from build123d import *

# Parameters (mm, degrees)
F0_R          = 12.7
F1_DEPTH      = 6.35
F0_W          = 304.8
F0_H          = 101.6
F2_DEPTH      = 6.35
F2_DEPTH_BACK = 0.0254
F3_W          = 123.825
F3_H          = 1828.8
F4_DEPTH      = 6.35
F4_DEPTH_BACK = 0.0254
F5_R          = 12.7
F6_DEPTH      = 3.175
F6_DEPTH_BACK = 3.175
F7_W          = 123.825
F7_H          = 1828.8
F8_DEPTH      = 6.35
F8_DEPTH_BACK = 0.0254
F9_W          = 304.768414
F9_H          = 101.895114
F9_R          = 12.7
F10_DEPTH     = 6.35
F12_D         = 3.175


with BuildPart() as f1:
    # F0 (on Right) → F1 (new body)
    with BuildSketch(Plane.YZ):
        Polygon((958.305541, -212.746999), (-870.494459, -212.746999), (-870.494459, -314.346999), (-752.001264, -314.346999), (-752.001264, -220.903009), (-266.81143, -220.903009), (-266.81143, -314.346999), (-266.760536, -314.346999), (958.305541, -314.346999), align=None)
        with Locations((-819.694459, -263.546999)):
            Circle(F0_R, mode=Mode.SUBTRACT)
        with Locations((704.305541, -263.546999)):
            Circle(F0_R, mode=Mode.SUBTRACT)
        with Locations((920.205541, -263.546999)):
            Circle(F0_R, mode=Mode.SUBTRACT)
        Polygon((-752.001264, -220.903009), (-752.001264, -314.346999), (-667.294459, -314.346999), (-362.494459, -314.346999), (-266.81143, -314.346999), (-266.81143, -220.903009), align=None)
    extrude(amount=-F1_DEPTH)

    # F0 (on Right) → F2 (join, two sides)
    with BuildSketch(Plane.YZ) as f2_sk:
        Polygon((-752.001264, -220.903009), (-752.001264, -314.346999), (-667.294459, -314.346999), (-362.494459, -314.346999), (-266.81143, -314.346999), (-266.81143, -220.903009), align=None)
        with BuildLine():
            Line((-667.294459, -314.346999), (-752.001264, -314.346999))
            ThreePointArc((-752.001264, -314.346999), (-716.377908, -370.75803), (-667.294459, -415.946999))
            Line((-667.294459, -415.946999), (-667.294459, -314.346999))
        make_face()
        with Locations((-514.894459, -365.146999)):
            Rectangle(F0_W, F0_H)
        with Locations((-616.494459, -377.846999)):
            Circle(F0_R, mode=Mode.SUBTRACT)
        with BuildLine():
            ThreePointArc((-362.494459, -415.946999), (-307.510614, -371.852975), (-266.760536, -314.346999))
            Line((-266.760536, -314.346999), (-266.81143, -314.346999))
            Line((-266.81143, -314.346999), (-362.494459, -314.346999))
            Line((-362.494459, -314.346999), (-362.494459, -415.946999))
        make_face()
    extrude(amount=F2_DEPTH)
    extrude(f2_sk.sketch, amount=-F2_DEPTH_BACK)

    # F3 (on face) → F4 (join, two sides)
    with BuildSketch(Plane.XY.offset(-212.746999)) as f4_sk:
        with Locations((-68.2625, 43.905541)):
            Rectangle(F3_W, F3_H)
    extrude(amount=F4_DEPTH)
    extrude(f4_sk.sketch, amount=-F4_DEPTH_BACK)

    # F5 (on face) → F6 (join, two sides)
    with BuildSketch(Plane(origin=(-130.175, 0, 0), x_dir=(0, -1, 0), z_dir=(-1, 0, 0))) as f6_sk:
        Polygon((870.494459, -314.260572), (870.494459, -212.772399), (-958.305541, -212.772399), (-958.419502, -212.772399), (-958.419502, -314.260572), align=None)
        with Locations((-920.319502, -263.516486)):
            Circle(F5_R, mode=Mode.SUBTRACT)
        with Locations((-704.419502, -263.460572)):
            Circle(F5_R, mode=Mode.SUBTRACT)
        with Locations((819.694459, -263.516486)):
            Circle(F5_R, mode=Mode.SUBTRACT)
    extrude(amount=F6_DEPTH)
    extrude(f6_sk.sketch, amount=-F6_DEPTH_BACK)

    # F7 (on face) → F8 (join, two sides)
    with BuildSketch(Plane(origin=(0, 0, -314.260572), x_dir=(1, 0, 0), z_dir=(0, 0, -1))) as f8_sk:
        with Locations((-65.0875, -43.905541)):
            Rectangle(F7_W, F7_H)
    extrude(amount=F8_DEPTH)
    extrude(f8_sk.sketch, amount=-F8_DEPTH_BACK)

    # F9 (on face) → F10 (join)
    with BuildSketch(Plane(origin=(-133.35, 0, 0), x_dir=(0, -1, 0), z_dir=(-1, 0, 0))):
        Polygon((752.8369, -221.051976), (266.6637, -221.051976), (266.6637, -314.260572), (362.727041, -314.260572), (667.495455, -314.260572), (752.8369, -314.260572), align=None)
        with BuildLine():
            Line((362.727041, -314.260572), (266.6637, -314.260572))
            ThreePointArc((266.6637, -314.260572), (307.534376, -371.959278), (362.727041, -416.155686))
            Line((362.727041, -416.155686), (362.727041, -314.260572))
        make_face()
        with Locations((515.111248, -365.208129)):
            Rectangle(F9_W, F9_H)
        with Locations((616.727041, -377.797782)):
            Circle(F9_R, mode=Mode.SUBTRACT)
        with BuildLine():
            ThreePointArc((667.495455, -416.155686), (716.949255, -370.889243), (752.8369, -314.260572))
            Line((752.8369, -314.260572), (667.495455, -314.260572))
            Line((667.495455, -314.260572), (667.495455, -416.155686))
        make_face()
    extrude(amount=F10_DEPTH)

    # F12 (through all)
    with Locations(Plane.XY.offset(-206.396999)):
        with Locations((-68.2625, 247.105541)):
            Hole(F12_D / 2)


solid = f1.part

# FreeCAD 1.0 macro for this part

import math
import FreeCAD as App
import Part
import Sketcher
Q = App.Units.Quantity


def add_polygon(sketch, points):
    """Adds a closed chain of lines whose ends are joined by coincident constraints."""
    first, n = sketch.GeometryCount, len(points)
    for a, b in zip(points, points[1:] + points[:1]):
        sketch.addGeometry(Part.LineSegment(App.Vector(*a, 0), App.Vector(*b, 0)), False)
    for i in range(n):
        sketch.addConstraint(Sketcher.Constraint("Coincident", first + i, 2, first + (i + 1) % n, 1))

doc = App.newDocument("Part")
params = doc.addObject("Spreadsheet::Sheet", "Params")
for row, (alias, value) in enumerate([
    ("sketch1_diameter", "1 in"),
    ("sketch1_width", "72 in"),
    ("sketch1_height", "4 in"),
    ("pad1_length", "0.25 in"),
    ("sketch2_diameter", "1 in"),
    ("sketch2_radius", "10 in"),
    ("sketch2_radius2", "10.0000001 in"),
    ("sketch2_width", "12 in"),
    ("pad2_length", "0.25 in"),
    ("pad2_length2", "0.001 in"),
    ("sketch3_height", "72 in"),
    ("sketch3_width", "4.875 in"),
    ("pad3_length", "0.25 in"),
    ("pad3_length2", "0.001 in"),
    ("sketch4_diameter", "1 in"),
    ("pad4_length", "0.125 in"),
    ("pad4_length2", "0.125 in"),
    ("sketch5_height", "72 in"),
    ("sketch5_width", "4.875 in"),
    ("pad5_length", "0.25 in"),
    ("pad5_length2", "0.001 in"),
    ("sketch6_diameter", "1 in"),
    ("sketch6_radius", "10.0000002 in"),
    ("pad6_length", "0.25 in"),
    ("sketch7_diameter", "0.125 in"),
    ("hole_diameter", "0.125 in"),
], start=1):
    params.set(f"A{row}", alias)
    params.set(f"B{row}", "=" + value)
    params.setAlias(f"B{row}", alias)

body = doc.addObject("PartDesign::Body", "Body")

sketch1 = doc.addObject("Sketcher::SketchObject", "Sketch")
body.addObject(sketch1)
sketch1.AttachmentSupport = (doc.YZ_Plane, [""])
sketch1.MapMode = "FlatFace"
add_polygon(sketch1, [(958, -213), (-870, -213), (-870, -314), (958, -314)])
sketch1.addGeometry(Part.Circle(App.Vector(-820, -264, 0), App.Vector(0, 0, 1), 13), False)
sketch1.addGeometry(Part.Circle(App.Vector(704, -264, 0), App.Vector(0, 0, 1), 13), False)
sketch1.addGeometry(Part.Circle(App.Vector(920, -264, 0), App.Vector(0, 0, 1), 13), False)
sketch1.addConstraint(Sketcher.Constraint("Horizontal", 0))
sketch1.addConstraint(Sketcher.Constraint("Vertical", 1))
sketch1.addConstraint(Sketcher.Constraint("Horizontal", 2))
sketch1.addConstraint(Sketcher.Constraint("Vertical", 3))
sketch1.addConstraint(Sketcher.Constraint("Equal", 4, 5))
sketch1.addConstraint(Sketcher.Constraint("Equal", 5, 6))
sketch1.addConstraint(Sketcher.Constraint("Horizontal", 4, 3, 5, 3))
sketch1.addConstraint(Sketcher.Constraint("Horizontal", 5, 3, 6, 3))
sketch1.addConstraint(Sketcher.Constraint("Diameter", 4, Q("1 in")))
sketch1.addConstraint(Sketcher.Constraint("DistanceX", 0, 2, 0, 1, Q("72 in")))
sketch1.addConstraint(Sketcher.Constraint("DistanceY", 1, 2, 1, 1, Q("4 in")))
sketch1.addConstraint(Sketcher.Constraint("DistanceX", 4, 3, 5, 3, Q("60 in")))
sketch1.addConstraint(Sketcher.Constraint("DistanceX", 0, 2, 4, 3, Q("2 in")))
sketch1.addConstraint(Sketcher.Constraint("DistanceY", 4, 3, 0, 2, Q("2 in")))
sketch1.addConstraint(Sketcher.Constraint("DistanceX", 5, 3, 6, 3, Q("8.5 in")))
sketch1.addConstraint(Sketcher.Constraint("DistanceY", 4, 3, -1, 1, Q("263.546999 mm")))
sketch1.addConstraint(Sketcher.Constraint("DistanceX", 4, 3, -1, 1, Q("819.694459 mm")))
sketch1.setExpression("Constraints[12]", "Params.sketch1_diameter")
sketch1.setExpression("Constraints[13]", "Params.sketch1_width")
sketch1.setExpression("Constraints[14]", "Params.sketch1_height")
pad1 = doc.addObject("PartDesign::Pad", "Pad")
body.addObject(pad1)
pad1.Profile = sketch1
pad1.setExpression("Length", "Params.pad1_length")
pad1.Reversed = True

sketch2 = doc.addObject("Sketcher::SketchObject", "Sketch001")
body.addObject(sketch2)
sketch2.AttachmentSupport = (doc.YZ_Plane, [""])
sketch2.MapMode = "FlatFace"
sketch2.addGeometry(Part.LineSegment(App.Vector(-752, -220.9, 0), App.Vector(-752, -314.35, 0)), False)
sketch2.addGeometry(Part.ArcOfCircle(Part.Circle(App.Vector(-521.29, -208.11, 0), App.Vector(0, 0, 1), 254), math.radians(-155), math.radians(-125)), False)
sketch2.addGeometry(Part.LineSegment(App.Vector(-667.29, -415.95, 0), App.Vector(-362.49, -415.95, 0)), False)
sketch2.addGeometry(Part.ArcOfCircle(Part.Circle(App.Vector(-492.37, -197.66, 0), App.Vector(0, 0, 1), 254), math.radians(-59), math.radians(-27)), False)
sketch2.addGeometry(Part.LineSegment(App.Vector(-266.76, -314.35, 0), App.Vector(-266.81, -314.35, 0)), False)
sketch2.addGeometry(Part.LineSegment(App.Vector(-266.81, -314.35, 0), App.Vector(-266.81, -220.9, 0)), False)
sketch2.addGeometry(Part.LineSegment(App.Vector(-266.81, -220.9, 0), App.Vector(-752, -220.9, 0)), False)
sketch2.addGeometry(Part.Circle(App.Vector(-616.49, -377.85, 0), App.Vector(0, 0, 1), 12.7), False)
sketch2.addConstraint(Sketcher.Constraint("Coincident", 0, 2, 1, 1))
sketch2.addConstraint(Sketcher.Constraint("Coincident", 1, 2, 2, 1))
sketch2.addConstraint(Sketcher.Constraint("Coincident", 2, 2, 3, 1))
sketch2.addConstraint(Sketcher.Constraint("Coincident", 3, 2, 4, 1))
sketch2.addConstraint(Sketcher.Constraint("Coincident", 4, 2, 5, 1))
sketch2.addConstraint(Sketcher.Constraint("Coincident", 5, 2, 6, 1))
sketch2.addConstraint(Sketcher.Constraint("Coincident", 6, 2, 0, 1))
sketch2.addConstraint(Sketcher.Constraint("Vertical", 0))
sketch2.addConstraint(Sketcher.Constraint("Horizontal", 2))
sketch2.addConstraint(Sketcher.Constraint("Horizontal", 4))
sketch2.addConstraint(Sketcher.Constraint("Vertical", 5))
sketch2.addConstraint(Sketcher.Constraint("Horizontal", 6))
sketch2.addConstraint(Sketcher.Constraint("Horizontal", 0, 2, 3, 2))
sketch2.addConstraint(Sketcher.Constraint("Diameter", 7, Q("1 in")))
sketch2.addConstraint(Sketcher.Constraint("Radius", 1, Q("10 in")))
sketch2.addConstraint(Sketcher.Constraint("Radius", 3, Q("10.0000001 in")))
sketch2.addConstraint(Sketcher.Constraint("DistanceX", 2, 1, 2, 2, Q("12 in")))
sketch2.addConstraint(Sketcher.Constraint("DistanceX", 1, 2, 7, 3, Q("2 in")))
sketch2.addConstraint(Sketcher.Constraint("DistanceY", 1, 2, 0, 2, Q("4 in")))
sketch2.addConstraint(Sketcher.Constraint("DistanceY", 7, 3, 0, 2, Q("2.5 in")))
sketch2.addConstraint(Sketcher.Constraint("DistanceY", 0, 2, 0, 1, Q("93.44399 mm")))
sketch2.addConstraint(Sketcher.Constraint("DistanceY", 7, 3, -1, 1, Q("377.846999 mm")))
sketch2.addConstraint(Sketcher.Constraint("DistanceX", 3, 3, 3, 2, Q("225.6126 mm")))
sketch2.addConstraint(Sketcher.Constraint("DistanceX", 4, 2, 4, 1, Q("0.050894 mm")))
sketch2.addConstraint(Sketcher.Constraint("DistanceX", 6, 2, 6, 1, Q("485.189834 mm")))
sketch2.addConstraint(Sketcher.Constraint("DistanceX", 7, 3, -1, 1, Q("616.494459 mm")))
sketch2.setExpression("Constraints[13]", "Params.sketch2_diameter")
sketch2.setExpression("Constraints[14]", "Params.sketch2_radius")
sketch2.setExpression("Constraints[15]", "Params.sketch2_radius2")
sketch2.setExpression("Constraints[16]", "Params.sketch2_width")
pad2 = doc.addObject("PartDesign::Pad", "Pad001")
body.addObject(pad2)
pad2.Profile = sketch2
pad2.Type = "TwoLengths"
pad2.setExpression("Length", "Params.pad2_length")
pad2.setExpression("Length2", "Params.pad2_length2")

sketch3 = doc.addObject("Sketcher::SketchObject", "Sketch002")
body.addObject(sketch3)
sketch3.AttachmentSupport = (doc.XY_Plane, [""])
sketch3.MapMode = "FlatFace"
sketch3.AttachmentOffset = App.Placement(App.Vector(0, 0, -212.746999), App.Rotation())
add_polygon(sketch3, [(-130, 958), (-130, -870), (-6, -870), (-6, 958)])
sketch3.addConstraint(Sketcher.Constraint("Vertical", 0))
sketch3.addConstraint(Sketcher.Constraint("Horizontal", 1))
sketch3.addConstraint(Sketcher.Constraint("Vertical", 2))
sketch3.addConstraint(Sketcher.Constraint("Horizontal", 3))
sketch3.addConstraint(Sketcher.Constraint("DistanceY", 0, 2, 0, 1, Q("72 in")))
sketch3.addConstraint(Sketcher.Constraint("DistanceX", 1, 1, 1, 2, Q("4.875 in")))
sketch3.addConstraint(Sketcher.Constraint("DistanceX", 1, 2, -1, 1, Q("0.25 in")))
sketch3.addConstraint(Sketcher.Constraint("DistanceY", 0, 2, -1, 1, Q("870.494459 mm")))
sketch3.setExpression("Constraints[8]", "Params.sketch3_height")
sketch3.setExpression("Constraints[9]", "Params.sketch3_width")
pad3 = doc.addObject("PartDesign::Pad", "Pad002")
body.addObject(pad3)
pad3.Profile = sketch3
pad3.Type = "TwoLengths"
pad3.setExpression("Length", "Params.pad3_length")
pad3.setExpression("Length2", "Params.pad3_length2")

sketch4 = doc.addObject("Sketcher::SketchObject", "Sketch003")
body.addObject(sketch4)
sketch4.AttachmentSupport = (doc.YZ_Plane, [""])
sketch4.MapMode = "FlatFace"
sketch4.AttachmentOffset = App.Placement(App.Vector(0, 0, -5.125 * 25.4), App.Rotation())
add_polygon(sketch4, [(-870, -314), (-870, -213), (958, -213), (958, -314)])
sketch4.addGeometry(Part.Circle(App.Vector(920, -264, 0), App.Vector(0, 0, 1), 13), False)
sketch4.addGeometry(Part.Circle(App.Vector(-820, -264, 0), App.Vector(0, 0, 1), 13), False)
sketch4.addGeometry(Part.Circle(App.Vector(704, -263, 0), App.Vector(0, 0, 1), 13), False)
sketch4.addConstraint(Sketcher.Constraint("Vertical", 0))
sketch4.addConstraint(Sketcher.Constraint("Horizontal", 1))
sketch4.addConstraint(Sketcher.Constraint("Vertical", 2))
sketch4.addConstraint(Sketcher.Constraint("Horizontal", 3))
sketch4.addConstraint(Sketcher.Constraint("Equal", 4, 5))
sketch4.addConstraint(Sketcher.Constraint("Equal", 5, 6))
sketch4.addConstraint(Sketcher.Constraint("Horizontal", 4, 3, 5, 3))
sketch4.addConstraint(Sketcher.Constraint("Diameter", 4, Q("1 in")))
sketch4.addConstraint(Sketcher.Constraint("DistanceX", 0, 2, 5, 3, Q("2 in")))
sketch4.addConstraint(Sketcher.Constraint("DistanceX", 6, 3, 1, 2, Q("10 in")))
sketch4.addConstraint(Sketcher.Constraint("DistanceY", 2, 2, 6, 3, Q("2 in")))
sketch4.addConstraint(Sketcher.Constraint("DistanceX", 6, 3, 4, 3, Q("8.5 in")))
sketch4.addConstraint(Sketcher.Constraint("DistanceX", 1, 1, 1, 2, Q("1828.913961 mm")))
sketch4.addConstraint(Sketcher.Constraint("DistanceX", -1, 1, 6, 3, Q("704.419502 mm")))
sketch4.addConstraint(Sketcher.Constraint("DistanceY", 0, 2, -1, 1, Q("212.772399 mm")))
sketch4.addConstraint(Sketcher.Constraint("DistanceY", 0, 1, 0, 2, Q("101.488173 mm")))
sketch4.addConstraint(Sketcher.Constraint("DistanceY", 4, 3, -1, 1, Q("263.516486 mm")))
sketch4.setExpression("Constraints[11]", "Params.sketch4_diameter")
pad4 = doc.addObject("PartDesign::Pad", "Pad003")
body.addObject(pad4)
pad4.Profile = sketch4
pad4.Type = "TwoLengths"
pad4.setExpression("Length", "Params.pad4_length")
pad4.setExpression("Length2", "Params.pad4_length2")
pad4.Reversed = True

sketch5 = doc.addObject("Sketcher::SketchObject", "Sketch004")
body.addObject(sketch5)
sketch5.AttachmentSupport = (doc.XY_Plane, [""])
sketch5.MapMode = "FlatFace"
sketch5.AttachmentOffset = App.Placement(App.Vector(0, 0, -314.260572), App.Rotation())
add_polygon(sketch5, [(-127, -870), (-127, 958), (-3, 958), (-3, -870)])
sketch5.addConstraint(Sketcher.Constraint("Vertical", 0))
sketch5.addConstraint(Sketcher.Constraint("Horizontal", 1))
sketch5.addConstraint(Sketcher.Constraint("Vertical", 2))
sketch5.addConstraint(Sketcher.Constraint("Horizontal", 3))
sketch5.addConstraint(Sketcher.Constraint("DistanceY", 0, 1, 0, 2, Q("72 in")))
sketch5.addConstraint(Sketcher.Constraint("DistanceX", 0, 2, -1, 1, Q("5 in")))
sketch5.addConstraint(Sketcher.Constraint("DistanceX", 1, 1, 1, 2, Q("4.875 in")))
sketch5.addConstraint(Sketcher.Constraint("DistanceY", -1, 1, 0, 2, Q("958.305541 mm")))
sketch5.setExpression("Constraints[8]", "Params.sketch5_height")
sketch5.setExpression("Constraints[10]", "Params.sketch5_width")
pad5 = doc.addObject("PartDesign::Pad", "Pad004")
body.addObject(pad5)
pad5.Profile = sketch5
pad5.Type = "TwoLengths"
pad5.setExpression("Length", "Params.pad5_length")
pad5.setExpression("Length2", "Params.pad5_length2")
pad5.Reversed = True

sketch6 = doc.addObject("Sketcher::SketchObject", "Sketch005")
body.addObject(sketch6)
sketch6.AttachmentSupport = (doc.YZ_Plane, [""])
sketch6.MapMode = "FlatFace"
sketch6.AttachmentOffset = App.Placement(App.Vector(0, 0, -5.25 * 25.4), App.Rotation())
sketch6.addGeometry(Part.LineSegment(App.Vector(-753, -221, 0), App.Vector(-267, -221, 0)), False)
sketch6.addGeometry(Part.LineSegment(App.Vector(-267, -221, 0), App.Vector(-267, -314, 0)), False)
sketch6.addGeometry(Part.ArcOfCircle(Part.Circle(App.Vector(-492, -198, 0), App.Vector(0, 0, 1), 254), math.radians(-59), math.radians(-27)), False)
sketch6.addGeometry(Part.LineSegment(App.Vector(-363, -416, 0), App.Vector(-667, -416, 0)), False)
sketch6.addGeometry(Part.ArcOfCircle(Part.Circle(App.Vector(-522, -208, 0), App.Vector(0, 0, 1), 254), math.radians(-155), math.radians(-125)), False)
sketch6.addGeometry(Part.LineSegment(App.Vector(-753, -314, 0), App.Vector(-753, -221, 0)), False)
sketch6.addGeometry(Part.Circle(App.Vector(-617, -378, 0), App.Vector(0, 0, 1), 13), False)
sketch6.addConstraint(Sketcher.Constraint("Coincident", 0, 2, 1, 1))
sketch6.addConstraint(Sketcher.Constraint("Coincident", 1, 2, 2, 2))
sketch6.addConstraint(Sketcher.Constraint("Coincident", 2, 1, 3, 1))
sketch6.addConstraint(Sketcher.Constraint("Coincident", 3, 2, 4, 2))
sketch6.addConstraint(Sketcher.Constraint("Coincident", 4, 1, 5, 1))
sketch6.addConstraint(Sketcher.Constraint("Coincident", 5, 2, 0, 1))
sketch6.addConstraint(Sketcher.Constraint("Horizontal", 0))
sketch6.addConstraint(Sketcher.Constraint("Vertical", 1))
sketch6.addConstraint(Sketcher.Constraint("Horizontal", 3))
sketch6.addConstraint(Sketcher.Constraint("Vertical", 5))
sketch6.addConstraint(Sketcher.Constraint("Horizontal", 1, 2, 4, 1))
sketch6.addConstraint(Sketcher.Constraint("Diameter", 6, Q("1 in")))
sketch6.addConstraint(Sketcher.Constraint("Radius", 4, Q("10.0000002 in")))
sketch6.addConstraint(Sketcher.Constraint("DistanceX", 6, 3, 2, 1, Q("10 in")))
sketch6.addConstraint(Sketcher.Constraint("DistanceX", 0, 1, 0, 2, Q("486.1732 mm")))
sketch6.addConstraint(Sketcher.Constraint("Radius", 2, Q("254.000013 mm")))
sketch6.addConstraint(Sketcher.Constraint("DistanceX", 4, 3, -1, 1, Q("522.224702 mm")))
sketch6.addConstraint(Sketcher.Constraint("DistanceX", 0, 2, -1, 1, Q("266.6637 mm")))
sketch6.addConstraint(Sketcher.Constraint("DistanceX", 3, 2, 3, 1, Q("304.768414 mm")))
sketch6.addConstraint(Sketcher.Constraint("DistanceY", 1, 2, 1, 1, Q("93.208596 mm")))
sketch6.addConstraint(Sketcher.Constraint("DistanceX", 2, 3, -1, 1, Q("492.350419 mm")))
sketch6.addConstraint(Sketcher.Constraint("DistanceY", 2, 3, -1, 1, Q("197.720829 mm")))
sketch6.addConstraint(Sketcher.Constraint("DistanceY", 6, 3, -1, 1, Q("377.797782 mm")))
sketch6.setExpression("Constraints[11]", "Params.sketch6_diameter")
sketch6.setExpression("Constraints[12]", "Params.sketch6_radius")
pad6 = doc.addObject("PartDesign::Pad", "Pad005")
body.addObject(pad6)
pad6.Profile = sketch6
pad6.setExpression("Length", "Params.pad6_length")
pad6.Reversed = True

sketch7 = doc.addObject("Sketcher::SketchObject", "Sketch006")
body.addObject(sketch7)
sketch7.AttachmentSupport = (doc.XY_Plane, [""])
sketch7.MapMode = "FlatFace"
sketch7.AttachmentOffset = App.Placement(App.Vector(0, 0, -206.396999), App.Rotation())
sketch7.addGeometry(Part.Circle(App.Vector(-68.3, 247.1, 0), App.Vector(0, 0, 1), 1.6), False)
sketch7.addConstraint(Sketcher.Constraint("Diameter", 0, Q("0.125 in")))
sketch7.addConstraint(Sketcher.Constraint("DistanceX", 0, 3, -1, 1, Q("2.6875 in")))
sketch7.addConstraint(Sketcher.Constraint("DistanceY", -1, 1, 0, 3, Q("247.105541 mm")))
sketch7.setExpression("Constraints[0]", "Params.sketch7_diameter")
doc.recompute()
hole = doc.addObject("PartDesign::Hole", "Hole")
body.addObject(hole)
hole.Profile = sketch7
hole.ThreadType = "None"
hole.setExpression("Diameter", "Params.hole_diameter")
hole.DepthType = "ThroughAll"

doc.recompute()
